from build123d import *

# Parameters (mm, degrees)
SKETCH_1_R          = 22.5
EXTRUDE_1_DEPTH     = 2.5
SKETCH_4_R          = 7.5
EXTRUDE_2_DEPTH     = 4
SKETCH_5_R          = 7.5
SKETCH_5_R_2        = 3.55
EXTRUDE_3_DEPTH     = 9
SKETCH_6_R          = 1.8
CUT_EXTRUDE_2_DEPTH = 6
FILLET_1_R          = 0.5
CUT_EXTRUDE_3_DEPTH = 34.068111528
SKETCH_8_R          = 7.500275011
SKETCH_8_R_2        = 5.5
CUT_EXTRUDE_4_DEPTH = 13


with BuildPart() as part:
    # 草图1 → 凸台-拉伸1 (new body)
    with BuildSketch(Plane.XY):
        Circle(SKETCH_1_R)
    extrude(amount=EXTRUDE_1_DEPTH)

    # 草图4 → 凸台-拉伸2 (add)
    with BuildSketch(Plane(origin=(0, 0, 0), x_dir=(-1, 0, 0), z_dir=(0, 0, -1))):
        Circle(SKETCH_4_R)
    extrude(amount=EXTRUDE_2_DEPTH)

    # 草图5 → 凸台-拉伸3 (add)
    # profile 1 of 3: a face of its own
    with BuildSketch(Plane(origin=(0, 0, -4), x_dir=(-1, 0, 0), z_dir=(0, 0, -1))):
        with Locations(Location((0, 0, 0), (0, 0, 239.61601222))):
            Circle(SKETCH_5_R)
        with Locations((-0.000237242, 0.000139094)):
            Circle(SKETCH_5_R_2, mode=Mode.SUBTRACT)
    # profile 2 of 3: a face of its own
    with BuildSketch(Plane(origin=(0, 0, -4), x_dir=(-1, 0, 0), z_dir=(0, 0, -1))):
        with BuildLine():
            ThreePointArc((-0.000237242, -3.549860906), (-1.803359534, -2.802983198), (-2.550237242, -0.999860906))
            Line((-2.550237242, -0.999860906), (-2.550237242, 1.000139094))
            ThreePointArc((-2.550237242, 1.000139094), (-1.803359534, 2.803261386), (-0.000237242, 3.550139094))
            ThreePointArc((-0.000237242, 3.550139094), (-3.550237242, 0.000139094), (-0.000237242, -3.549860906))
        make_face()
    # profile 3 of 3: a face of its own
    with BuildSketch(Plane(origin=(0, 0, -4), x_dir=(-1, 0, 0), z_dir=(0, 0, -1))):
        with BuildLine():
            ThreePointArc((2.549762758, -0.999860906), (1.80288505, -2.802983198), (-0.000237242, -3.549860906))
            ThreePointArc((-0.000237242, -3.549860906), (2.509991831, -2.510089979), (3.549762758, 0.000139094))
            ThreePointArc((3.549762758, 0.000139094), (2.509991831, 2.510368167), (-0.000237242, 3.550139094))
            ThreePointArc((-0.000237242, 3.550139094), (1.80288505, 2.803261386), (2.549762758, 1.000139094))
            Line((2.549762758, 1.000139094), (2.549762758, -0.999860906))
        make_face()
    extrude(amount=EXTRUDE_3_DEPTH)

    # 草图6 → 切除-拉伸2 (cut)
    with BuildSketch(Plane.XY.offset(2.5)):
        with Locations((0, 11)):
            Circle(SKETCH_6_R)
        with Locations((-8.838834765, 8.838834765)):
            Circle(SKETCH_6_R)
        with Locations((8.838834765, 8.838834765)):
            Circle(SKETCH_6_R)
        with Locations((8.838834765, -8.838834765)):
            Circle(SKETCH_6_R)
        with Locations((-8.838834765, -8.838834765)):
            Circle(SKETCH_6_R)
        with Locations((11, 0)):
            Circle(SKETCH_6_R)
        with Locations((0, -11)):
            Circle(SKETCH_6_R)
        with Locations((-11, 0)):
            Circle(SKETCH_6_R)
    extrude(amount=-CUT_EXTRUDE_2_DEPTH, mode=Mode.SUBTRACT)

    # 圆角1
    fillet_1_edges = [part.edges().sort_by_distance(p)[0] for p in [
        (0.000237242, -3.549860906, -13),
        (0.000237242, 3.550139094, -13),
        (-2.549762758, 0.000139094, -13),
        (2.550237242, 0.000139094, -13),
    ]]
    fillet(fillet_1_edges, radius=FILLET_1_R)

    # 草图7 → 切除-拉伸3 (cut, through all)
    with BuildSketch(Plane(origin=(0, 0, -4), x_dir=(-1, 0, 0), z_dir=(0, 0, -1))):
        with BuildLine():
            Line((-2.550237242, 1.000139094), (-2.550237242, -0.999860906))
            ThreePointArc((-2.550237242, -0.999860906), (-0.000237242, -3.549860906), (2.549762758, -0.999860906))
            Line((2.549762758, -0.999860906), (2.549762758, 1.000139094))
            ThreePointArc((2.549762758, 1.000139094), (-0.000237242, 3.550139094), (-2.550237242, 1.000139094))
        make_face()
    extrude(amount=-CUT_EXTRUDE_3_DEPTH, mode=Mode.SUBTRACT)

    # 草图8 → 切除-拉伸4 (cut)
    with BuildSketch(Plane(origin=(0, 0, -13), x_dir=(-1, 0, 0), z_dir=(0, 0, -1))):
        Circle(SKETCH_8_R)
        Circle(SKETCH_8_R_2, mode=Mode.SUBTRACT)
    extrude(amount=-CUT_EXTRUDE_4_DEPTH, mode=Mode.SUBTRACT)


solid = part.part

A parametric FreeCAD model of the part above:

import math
import FreeCAD as App
import Part
import Sketcher
from FreeCAD import Vector


def edges_at(feature, points):
    """Names of the edges that pass closest to the given points."""
    edges = feature.Shape.Edges
    near = lambda p: min(range(len(edges)), key=lambda i: edges[i].distToShape(Part.Vertex(*p))[0])
    return sorted({f"Edge{near(p) + 1}" for p in points})

doc = App.newDocument("Part")
body = doc.addObject("PartDesign::Body", "Body")

# Sketch on XY plane
sketch1 = body.newObject("Sketcher::SketchObject", "Sketch")
sketch1.AttachmentSupport = (doc.getObject("XY_Plane"), [""])
sketch1.MapMode = "FlatFace"
sketch1.addGeometry(Part.Circle(Vector(0, 0, 0), Vector(0, 0, 1), 22.5), False)
sketch1.addConstraint(Sketcher.Constraint("Coincident", 0, 3, -1, 1))
sketch1.addConstraint(Sketcher.Constraint("Diameter", 0, 45.0))
pad1 = body.newObject("PartDesign::Pad", "Pad")
pad1.Profile = sketch1
pad1.Length = 2.5

# Sketch on XY plane
sketch2 = body.newObject("Sketcher::SketchObject", "Sketch001")
sketch2.AttachmentSupport = (doc.getObject("XY_Plane"), [""])
sketch2.MapMode = "FlatFace"
sketch2.addGeometry(Part.Circle(Vector(0, 0, 0), Vector(0, 0, 1), 7.5), False)
sketch2.addConstraint(Sketcher.Constraint("Coincident", 0, 3, -1, 1))
sketch2.addConstraint(Sketcher.Constraint("Diameter", 0, 15.0))
pad2 = body.newObject("PartDesign::Pad", "Pad001")
pad2.Profile = sketch2
pad2.Length = 4
pad2.Reversed = True

# Sketch on XY plane
sketch3 = body.newObject("Sketcher::SketchObject", "Sketch002")
sketch3.AttachmentSupport = (doc.getObject("XY_Plane"), [""])
sketch3.MapMode = "FlatFace"
sketch3.AttachmentOffset = App.Placement(Vector(0, 0, -4), App.Rotation())
sketch3.addGeometry(Part.Circle(Vector(0, 0, 0), Vector(0, 0, 1), 7.5), False)
sketch3.addGeometry(Part.ArcOfCircle(Part.Circle(Vector(0.000237, -0.999861, 0), Vector(0, 0, 1), 2.55), math.radians(180), math.radians(270)), False)
sketch3.addGeometry(Part.ArcOfCircle(Part.Circle(Vector(0.000237, -0.999861, 0), Vector(0, 0, 1), 2.55), math.radians(-90), math.radians(0)), False)
sketch3.addGeometry(Part.LineSegment(Vector(2.550237, -0.999861, 0), Vector(2.550237, 1.000139, 0)), False)
sketch3.addGeometry(Part.ArcOfCircle(Part.Circle(Vector(0.000237, 1.000139, 0), Vector(0, 0, 1), 2.55), math.radians(0), math.radians(90)), False)
sketch3.addGeometry(Part.ArcOfCircle(Part.Circle(Vector(0.000237, 1.000139, 0), Vector(0, 0, 1), 2.55), math.radians(90), math.radians(180)), False)
sketch3.addGeometry(Part.LineSegment(Vector(-2.549763, 1.000139, 0), Vector(-2.549763, -0.999861, 0)), False)
sketch3.addConstraint(Sketcher.Constraint("Tangent", 1, 2, 2, 1))
sketch3.addConstraint(Sketcher.Constraint("Tangent", 2, 2, 3, 1))
sketch3.addConstraint(Sketcher.Constraint("Tangent", 3, 2, 4, 1))
sketch3.addConstraint(Sketcher.Constraint("Tangent", 4, 2, 5, 1))
sketch3.addConstraint(Sketcher.Constraint("Tangent", 5, 2, 6, 1))
sketch3.addConstraint(Sketcher.Constraint("Tangent", 6, 2, 1, 1))
sketch3.addConstraint(Sketcher.Constraint("Vertical", 3))
sketch3.addConstraint(Sketcher.Constraint("Vertical", 6))
sketch3.addConstraint(Sketcher.Constraint("Coincident", 0, 3, -1, 1))
sketch3.addConstraint(Sketcher.Constraint("Equal", 1, 2))
sketch3.addConstraint(Sketcher.Constraint("Equal", 2, 4))
sketch3.addConstraint(Sketcher.Constraint("Vertical", 5, 3, 1, 2))
sketch3.addConstraint(Sketcher.Constraint("Vertical", 1, 2, 4, 2))
sketch3.addConstraint(Sketcher.Constraint("Diameter", 0, 15.0))
sketch3.addConstraint(Sketcher.Constraint("DistanceY", 3, 1, 3, 2, 2.0))
sketch3.addConstraint(Sketcher.Constraint("Radius", 1, 2.55))
sketch3.addConstraint(Sketcher.Constraint("DistanceY", 1, 3, -1, 1, 0.999861))
sketch3.addConstraint(Sketcher.Constraint("DistanceX", -1, 1, 1, 3, 0.000237))
pad3 = body.newObject("PartDesign::Pad", "Pad002")
pad3.Profile = sketch3
pad3.Length = 9
pad3.Reversed = True

# Sketch on XY plane
sketch4 = body.newObject("Sketcher::SketchObject", "Sketch003")
sketch4.AttachmentSupport = (doc.getObject("XY_Plane"), [""])
sketch4.MapMode = "FlatFace"
sketch4.AttachmentOffset = App.Placement(Vector(0, 0, 2.5), App.Rotation())
sketch4.addGeometry(Part.Circle(Vector(0, 11, 0), Vector(0, 0, 1), 1.8), False)
sketch4.addGeometry(Part.Circle(Vector(-8.838835, 8.838835, 0), Vector(0, 0, 1), 1.8), False)
sketch4.addGeometry(Part.Circle(Vector(8.838835, 8.838835, 0), Vector(0, 0, 1), 1.8), False)
sketch4.addGeometry(Part.Circle(Vector(8.838835, -8.838835, 0), Vector(0, 0, 1), 1.8), False)
sketch4.addGeometry(Part.Circle(Vector(-8.838835, -8.838835, 0), Vector(0, 0, 1), 1.8), False)
sketch4.addGeometry(Part.Circle(Vector(11, 0, 0), Vector(0, 0, 1), 1.8), False)
sketch4.addGeometry(Part.Circle(Vector(0, -11, 0), Vector(0, 0, 1), 1.8), False)
sketch4.addGeometry(Part.Circle(Vector(-11, 0, 0), Vector(0, 0, 1), 1.8), False)
sketch4.addConstraint(Sketcher.Constraint("Equal", 0, 1))
sketch4.addConstraint(Sketcher.Constraint("Equal", 1, 2))
sketch4.addConstraint(Sketcher.Constraint("Equal", 2, 3))
sketch4.addConstraint(Sketcher.Constraint("Equal", 3, 4))
sketch4.addConstraint(Sketcher.Constraint("Equal", 4, 5))
sketch4.addConstraint(Sketcher.Constraint("Equal", 5, 6))
sketch4.addConstraint(Sketcher.Constraint("Equal", 6, 7))
sketch4.addConstraint(Sketcher.Constraint("Symmetric", 1, 3, 3, 3, -1, 1))
sketch4.addConstraint(Sketcher.Constraint("Symmetric", 2, 3, 4, 3, -1, 1))
sketch4.addConstraint(Sketcher.Constraint("Symmetric", 0, 3, 6, 3, -1, 1))
sketch4.addConstraint(Sketcher.Constraint("Symmetric", 5, 3, 7, 3, -1, 1))
sketch4.addConstraint(Sketcher.Constraint("Symmetric", 1, 3, 2, 3, -2))
sketch4.addConstraint(Sketcher.Constraint("PointOnObject", 0, 3, -2))
sketch4.addConstraint(Sketcher.Constraint("PointOnObject", 5, 3, -1))
sketch4.addConstraint(Sketcher.Constraint("Diameter", 0, 3.6))
sketch4.addConstraint(Sketcher.Constraint("DistanceY", -1, 1, 0, 3, 11.0))
sketch4.addConstraint(Sketcher.Constraint("DistanceX", -1, 1, 5, 3, 11.0))
sketch4.addConstraint(Sketcher.Constraint("DistanceX", 1, 3, 2, 3, 17.67767))
sketch4.addConstraint(Sketcher.Constraint("DistanceY", 3, 3, 2, 3, 17.67767))
pocket1 = body.newObject("PartDesign::Pocket", "Pocket")
pocket1.Profile = sketch4
pocket1.Length = 6
doc.recompute()

fillet = body.newObject("PartDesign::Fillet", "Fillet")
fillet.Base = (pocket1, edges_at(pocket1, [
    (-1.803, -2.803, -13),
    (1.803, 2.803, -13),
    (-2.55, 0, -13),
    (2.55, 0, -13),
]))
fillet.Radius = 0.5

# Sketch on XY plane
sketch5 = body.newObject("Sketcher::SketchObject", "Sketch004")
sketch5.AttachmentSupport = (doc.getObject("XY_Plane"), [""])
sketch5.MapMode = "FlatFace"
sketch5.AttachmentOffset = App.Placement(Vector(0, 0, -4), App.Rotation())
sketch5.addGeometry(Part.LineSegment(Vector(2.550237, 1.000139, 0), Vector(2.550237, -0.999861, 0)), False)
sketch5.addGeometry(Part.ArcOfCircle(Part.Circle(Vector(0.000237, -0.999861, 0), Vector(0, 0, 1), 2.55), math.radians(180), math.radians(360)), False)
sketch5.addGeometry(Part.LineSegment(Vector(-2.549763, -0.999861, 0), Vector(-2.549763, 1.000139, 0)), False)
sketch5.addGeometry(Part.ArcOfCircle(Part.Circle(Vector(0.000237, 1.000139, 0), Vector(0, 0, 1), 2.55), math.radians(0), math.radians(180)), False)
sketch5.addConstraint(Sketcher.Constraint("Tangent", 0, 2, 1, 2))
sketch5.addConstraint(Sketcher.Constraint("Tangent", 1, 1, 2, 1))
sketch5.addConstraint(Sketcher.Constraint("Tangent", 2, 2, 3, 2))
sketch5.addConstraint(Sketcher.Constraint("Tangent", 3, 1, 0, 1))
sketch5.addConstraint(Sketcher.Constraint("Vertical", 0))
sketch5.addConstraint(Sketcher.Constraint("Vertical", 2))
sketch5.addConstraint(Sketcher.Constraint("DistanceY", 0, 2, 0, 1, 2.0))
sketch5.addConstraint(Sketcher.Constraint("Radius", 1, 2.55))
sketch5.addConstraint(Sketcher.Constraint("DistanceY", 1, 3, -1, 1, 0.999861))
sketch5.addConstraint(Sketcher.Constraint("DistanceX", -1, 1, 1, 3, 0.000237))
pocket2 = body.newObject("PartDesign::Pocket", "Pocket001")
pocket2.Profile = sketch5
pocket2.Type = "ThroughAll"
pocket2.Reversed = True

# Sketch on XY plane
sketch6 = body.newObject("Sketcher::SketchObject", "Sketch005")
sketch6.AttachmentSupport = (doc.getObject("XY_Plane"), [""])
sketch6.MapMode = "FlatFace"
sketch6.AttachmentOffset = App.Placement(Vector(0, 0, -13), App.Rotation())
sketch6.addGeometry(Part.Circle(Vector(0, 0, 0), Vector(0, 0, 1), 7.500275), False)
sketch6.addGeometry(Part.Circle(Vector(0, 0, 0), Vector(0, 0, 1), 5.5), False)
sketch6.addConstraint(Sketcher.Constraint("Coincident", 0, 3, -1, 1))
sketch6.addConstraint(Sketcher.Constraint("Coincident", 1, 3, -1, 1))
sketch6.addConstraint(Sketcher.Constraint("Diameter", 1, 11.0))
sketch6.addConstraint(Sketcher.Constraint("Diameter", 0, 15.00055))
pocket3 = body.newObject("PartDesign::Pocket", "Pocket002")
pocket3.Profile = sketch6
pocket3.Length = 13
pocket3.Reversed = True

doc.recompute()
